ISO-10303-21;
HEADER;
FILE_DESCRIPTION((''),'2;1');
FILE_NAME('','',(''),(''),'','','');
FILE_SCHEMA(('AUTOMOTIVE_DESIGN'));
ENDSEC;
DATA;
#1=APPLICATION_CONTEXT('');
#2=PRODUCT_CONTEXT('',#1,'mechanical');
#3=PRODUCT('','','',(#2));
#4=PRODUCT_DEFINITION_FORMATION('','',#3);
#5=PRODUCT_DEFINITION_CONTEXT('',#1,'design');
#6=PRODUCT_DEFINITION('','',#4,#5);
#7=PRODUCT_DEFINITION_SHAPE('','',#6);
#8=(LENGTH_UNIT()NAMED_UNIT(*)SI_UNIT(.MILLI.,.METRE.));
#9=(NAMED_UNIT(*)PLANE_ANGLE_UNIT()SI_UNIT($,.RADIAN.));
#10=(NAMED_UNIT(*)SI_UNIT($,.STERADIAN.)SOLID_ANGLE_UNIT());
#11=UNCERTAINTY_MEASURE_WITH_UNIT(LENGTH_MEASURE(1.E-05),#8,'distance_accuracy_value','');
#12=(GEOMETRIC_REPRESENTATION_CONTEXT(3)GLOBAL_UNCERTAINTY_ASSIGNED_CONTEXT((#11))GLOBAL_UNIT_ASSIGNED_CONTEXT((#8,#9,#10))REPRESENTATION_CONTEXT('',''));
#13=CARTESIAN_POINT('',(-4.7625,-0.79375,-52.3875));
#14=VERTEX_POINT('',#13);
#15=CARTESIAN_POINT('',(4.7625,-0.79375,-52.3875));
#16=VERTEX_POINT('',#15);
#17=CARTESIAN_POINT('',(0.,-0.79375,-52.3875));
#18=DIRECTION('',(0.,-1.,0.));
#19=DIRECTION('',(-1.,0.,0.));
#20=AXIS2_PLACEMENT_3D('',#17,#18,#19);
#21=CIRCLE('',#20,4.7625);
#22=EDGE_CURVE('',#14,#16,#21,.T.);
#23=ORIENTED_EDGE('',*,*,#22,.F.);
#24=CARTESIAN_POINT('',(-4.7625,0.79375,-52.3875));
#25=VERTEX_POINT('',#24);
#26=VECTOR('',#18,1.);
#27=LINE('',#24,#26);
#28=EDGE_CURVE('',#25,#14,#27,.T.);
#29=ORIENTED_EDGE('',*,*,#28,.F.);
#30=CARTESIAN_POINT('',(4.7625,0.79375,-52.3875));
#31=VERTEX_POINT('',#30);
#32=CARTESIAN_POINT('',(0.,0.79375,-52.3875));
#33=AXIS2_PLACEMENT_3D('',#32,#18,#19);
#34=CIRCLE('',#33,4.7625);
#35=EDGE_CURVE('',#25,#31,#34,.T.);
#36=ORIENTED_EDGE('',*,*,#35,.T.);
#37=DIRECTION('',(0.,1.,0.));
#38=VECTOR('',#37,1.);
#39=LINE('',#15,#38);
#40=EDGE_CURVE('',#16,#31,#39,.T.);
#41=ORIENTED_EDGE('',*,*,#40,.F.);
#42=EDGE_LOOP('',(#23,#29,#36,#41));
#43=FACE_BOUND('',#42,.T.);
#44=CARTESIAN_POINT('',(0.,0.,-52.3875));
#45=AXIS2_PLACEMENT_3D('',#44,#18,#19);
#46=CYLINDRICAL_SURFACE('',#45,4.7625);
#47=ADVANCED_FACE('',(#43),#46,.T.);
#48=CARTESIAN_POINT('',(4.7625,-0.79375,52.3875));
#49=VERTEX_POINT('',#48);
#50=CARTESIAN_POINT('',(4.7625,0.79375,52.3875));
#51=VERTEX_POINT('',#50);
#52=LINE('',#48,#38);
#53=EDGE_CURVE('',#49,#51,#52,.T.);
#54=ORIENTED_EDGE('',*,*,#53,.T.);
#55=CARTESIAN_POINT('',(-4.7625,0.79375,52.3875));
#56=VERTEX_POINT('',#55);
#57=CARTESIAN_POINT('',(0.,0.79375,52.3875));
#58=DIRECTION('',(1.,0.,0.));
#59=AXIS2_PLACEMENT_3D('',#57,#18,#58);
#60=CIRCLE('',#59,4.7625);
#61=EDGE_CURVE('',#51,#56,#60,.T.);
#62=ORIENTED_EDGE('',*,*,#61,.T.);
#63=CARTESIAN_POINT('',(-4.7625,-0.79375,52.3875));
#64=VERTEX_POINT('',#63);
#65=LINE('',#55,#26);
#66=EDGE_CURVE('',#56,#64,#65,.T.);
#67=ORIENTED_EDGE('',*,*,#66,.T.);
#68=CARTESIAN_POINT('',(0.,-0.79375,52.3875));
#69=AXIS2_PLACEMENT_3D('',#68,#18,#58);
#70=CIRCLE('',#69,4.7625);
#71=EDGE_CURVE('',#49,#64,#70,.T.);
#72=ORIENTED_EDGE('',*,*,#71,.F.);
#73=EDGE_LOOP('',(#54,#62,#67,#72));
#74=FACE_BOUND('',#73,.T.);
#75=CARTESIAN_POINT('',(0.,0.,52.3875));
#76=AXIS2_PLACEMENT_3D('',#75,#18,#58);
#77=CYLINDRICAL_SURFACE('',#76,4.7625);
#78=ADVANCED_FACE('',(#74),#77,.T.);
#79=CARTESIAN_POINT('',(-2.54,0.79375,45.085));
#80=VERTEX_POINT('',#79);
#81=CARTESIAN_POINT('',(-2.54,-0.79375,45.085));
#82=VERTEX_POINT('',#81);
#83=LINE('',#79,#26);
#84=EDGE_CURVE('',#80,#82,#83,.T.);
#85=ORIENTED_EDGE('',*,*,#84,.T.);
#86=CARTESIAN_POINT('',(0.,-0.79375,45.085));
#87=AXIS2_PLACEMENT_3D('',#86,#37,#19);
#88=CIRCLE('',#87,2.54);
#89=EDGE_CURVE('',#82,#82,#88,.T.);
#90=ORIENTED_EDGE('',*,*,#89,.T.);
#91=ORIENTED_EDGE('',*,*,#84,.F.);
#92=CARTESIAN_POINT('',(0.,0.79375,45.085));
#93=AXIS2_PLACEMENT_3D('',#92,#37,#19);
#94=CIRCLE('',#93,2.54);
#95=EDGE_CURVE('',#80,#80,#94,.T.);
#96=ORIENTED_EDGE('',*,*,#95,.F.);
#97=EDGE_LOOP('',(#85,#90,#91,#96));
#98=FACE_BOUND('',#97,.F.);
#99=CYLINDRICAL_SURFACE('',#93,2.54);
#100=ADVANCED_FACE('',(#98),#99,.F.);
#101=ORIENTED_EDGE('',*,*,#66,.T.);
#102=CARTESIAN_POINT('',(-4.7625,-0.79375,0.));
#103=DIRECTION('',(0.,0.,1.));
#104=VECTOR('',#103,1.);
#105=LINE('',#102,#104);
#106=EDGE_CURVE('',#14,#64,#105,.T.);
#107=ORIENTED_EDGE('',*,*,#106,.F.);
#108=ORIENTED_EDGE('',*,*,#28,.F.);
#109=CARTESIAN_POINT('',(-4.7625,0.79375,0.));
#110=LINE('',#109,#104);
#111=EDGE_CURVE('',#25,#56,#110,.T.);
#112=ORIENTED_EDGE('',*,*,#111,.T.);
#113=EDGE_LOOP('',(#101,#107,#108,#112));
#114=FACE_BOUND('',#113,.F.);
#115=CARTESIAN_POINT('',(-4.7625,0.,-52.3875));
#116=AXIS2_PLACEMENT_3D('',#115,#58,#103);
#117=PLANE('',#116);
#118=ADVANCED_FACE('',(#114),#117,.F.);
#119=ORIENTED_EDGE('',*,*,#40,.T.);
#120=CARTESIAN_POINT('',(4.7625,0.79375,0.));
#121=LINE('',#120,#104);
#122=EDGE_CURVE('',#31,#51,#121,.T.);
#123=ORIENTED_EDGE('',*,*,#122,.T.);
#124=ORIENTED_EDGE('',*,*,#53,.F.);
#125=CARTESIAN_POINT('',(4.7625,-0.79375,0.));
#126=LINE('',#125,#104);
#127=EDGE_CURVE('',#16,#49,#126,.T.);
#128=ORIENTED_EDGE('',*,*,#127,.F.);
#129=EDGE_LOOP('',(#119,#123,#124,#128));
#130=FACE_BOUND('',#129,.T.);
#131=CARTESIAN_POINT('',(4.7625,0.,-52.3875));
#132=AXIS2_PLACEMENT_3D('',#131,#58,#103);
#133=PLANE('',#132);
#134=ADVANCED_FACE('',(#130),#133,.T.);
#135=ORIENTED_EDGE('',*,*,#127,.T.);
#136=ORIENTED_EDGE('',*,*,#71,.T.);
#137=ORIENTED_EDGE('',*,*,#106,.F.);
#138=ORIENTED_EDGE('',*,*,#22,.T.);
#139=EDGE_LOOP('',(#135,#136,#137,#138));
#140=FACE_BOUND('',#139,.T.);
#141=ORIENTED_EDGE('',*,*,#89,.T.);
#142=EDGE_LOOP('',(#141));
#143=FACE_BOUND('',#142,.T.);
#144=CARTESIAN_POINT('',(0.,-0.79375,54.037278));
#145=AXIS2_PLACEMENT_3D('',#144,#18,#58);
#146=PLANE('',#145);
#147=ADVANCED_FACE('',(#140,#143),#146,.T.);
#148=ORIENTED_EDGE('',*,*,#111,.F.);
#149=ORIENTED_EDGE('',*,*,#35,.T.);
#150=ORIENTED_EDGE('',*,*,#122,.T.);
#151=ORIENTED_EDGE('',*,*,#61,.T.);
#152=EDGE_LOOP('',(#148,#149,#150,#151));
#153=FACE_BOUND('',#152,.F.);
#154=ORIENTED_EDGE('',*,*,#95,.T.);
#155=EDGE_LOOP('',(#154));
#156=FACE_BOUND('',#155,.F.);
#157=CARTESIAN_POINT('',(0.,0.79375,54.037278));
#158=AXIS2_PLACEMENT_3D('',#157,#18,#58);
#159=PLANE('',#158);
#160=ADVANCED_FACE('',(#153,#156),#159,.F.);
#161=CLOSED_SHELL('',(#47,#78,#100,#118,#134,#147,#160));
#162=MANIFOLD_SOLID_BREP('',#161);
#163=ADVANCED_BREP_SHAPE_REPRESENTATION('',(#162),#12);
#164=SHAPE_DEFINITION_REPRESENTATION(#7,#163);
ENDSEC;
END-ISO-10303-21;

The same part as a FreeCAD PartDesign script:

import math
import FreeCAD as App
import Part
import Sketcher
from FreeCAD import Vector
Q = App.Units.Quantity

doc = App.newDocument("Part")
body = doc.addObject("PartDesign::Body", "Body")

# Sketch on XZ plane
sketch1 = body.newObject("Sketcher::SketchObject", "Sketch")
sketch1.AttachmentSupport = (doc.getObject("XZ_Plane"), [""])
sketch1.MapMode = "FlatFace"
sketch1.addGeometry([
    Part.ArcOfCircle(Part.Circle(Vector(0, 52.4, 0), Vector(0, 0, 1), 4.8), math.radians(0), math.radians(180)),
    Part.LineSegment(Vector(-4.8, 52.4, 0), Vector(-4.8, -52.4, 0)),
    Part.ArcOfCircle(Part.Circle(Vector(0, -52.4, 0), Vector(0, 0, 1), 4.8), math.radians(180), math.radians(360)),
    Part.LineSegment(Vector(4.8, -52.4, 0), Vector(4.8, 52.4, 0)),
], False)
sketch1.addConstraint([
    Sketcher.Constraint("Tangent", 0, 2, 1, 1),
    Sketcher.Constraint("Tangent", 1, 2, 2, 1),
    Sketcher.Constraint("Tangent", 2, 2, 3, 1),
    Sketcher.Constraint("Tangent", 3, 2, 0, 1),
    Sketcher.Constraint("Vertical", 1),
    Sketcher.Constraint("Vertical", 3),
    Sketcher.Constraint("Symmetric", 0, 3, 2, 3, -1, 1),
    Sketcher.Constraint("Radius", 0, Q("0.1875 in")),
    Sketcher.Constraint("DistanceY", 1, 2, 1, 1, Q("4.125 in")),
])
pad1 = body.newObject("PartDesign::Pad", "Pad")
pad1.Profile = sketch1
pad1.Length = Q("0.0625 in")
pad1.Midplane = True

# Sketch on XZ plane
sketch2 = body.newObject("Sketcher::SketchObject", "Sketch001")
sketch2.AttachmentSupport = (doc.getObject("XZ_Plane"), [""])
sketch2.MapMode = "FlatFace"
sketch2.AttachmentOffset = App.Placement(Vector(0, 0, -0.03125 * 25.4), App.Rotation())
sketch2.addGeometry(Part.Circle(Vector(0, 45.1, 0), Vector(0, 0, 1), 2.5), False)
sketch2.addConstraint([
    Sketcher.Constraint("PointOnObject", 0, 3, -2),
    Sketcher.Constraint("Diameter", 0, Q("0.2 in")),
    Sketcher.Constraint("DistanceY", -1, 1, 0, 3, Q("1.775 in")),
])
pocket1 = body.newObject("PartDesign::Pocket", "Pocket")
pocket1.Profile = sketch2
pocket1.Type = "ThroughAll"
pocket1.Reversed = True

doc.recompute()
